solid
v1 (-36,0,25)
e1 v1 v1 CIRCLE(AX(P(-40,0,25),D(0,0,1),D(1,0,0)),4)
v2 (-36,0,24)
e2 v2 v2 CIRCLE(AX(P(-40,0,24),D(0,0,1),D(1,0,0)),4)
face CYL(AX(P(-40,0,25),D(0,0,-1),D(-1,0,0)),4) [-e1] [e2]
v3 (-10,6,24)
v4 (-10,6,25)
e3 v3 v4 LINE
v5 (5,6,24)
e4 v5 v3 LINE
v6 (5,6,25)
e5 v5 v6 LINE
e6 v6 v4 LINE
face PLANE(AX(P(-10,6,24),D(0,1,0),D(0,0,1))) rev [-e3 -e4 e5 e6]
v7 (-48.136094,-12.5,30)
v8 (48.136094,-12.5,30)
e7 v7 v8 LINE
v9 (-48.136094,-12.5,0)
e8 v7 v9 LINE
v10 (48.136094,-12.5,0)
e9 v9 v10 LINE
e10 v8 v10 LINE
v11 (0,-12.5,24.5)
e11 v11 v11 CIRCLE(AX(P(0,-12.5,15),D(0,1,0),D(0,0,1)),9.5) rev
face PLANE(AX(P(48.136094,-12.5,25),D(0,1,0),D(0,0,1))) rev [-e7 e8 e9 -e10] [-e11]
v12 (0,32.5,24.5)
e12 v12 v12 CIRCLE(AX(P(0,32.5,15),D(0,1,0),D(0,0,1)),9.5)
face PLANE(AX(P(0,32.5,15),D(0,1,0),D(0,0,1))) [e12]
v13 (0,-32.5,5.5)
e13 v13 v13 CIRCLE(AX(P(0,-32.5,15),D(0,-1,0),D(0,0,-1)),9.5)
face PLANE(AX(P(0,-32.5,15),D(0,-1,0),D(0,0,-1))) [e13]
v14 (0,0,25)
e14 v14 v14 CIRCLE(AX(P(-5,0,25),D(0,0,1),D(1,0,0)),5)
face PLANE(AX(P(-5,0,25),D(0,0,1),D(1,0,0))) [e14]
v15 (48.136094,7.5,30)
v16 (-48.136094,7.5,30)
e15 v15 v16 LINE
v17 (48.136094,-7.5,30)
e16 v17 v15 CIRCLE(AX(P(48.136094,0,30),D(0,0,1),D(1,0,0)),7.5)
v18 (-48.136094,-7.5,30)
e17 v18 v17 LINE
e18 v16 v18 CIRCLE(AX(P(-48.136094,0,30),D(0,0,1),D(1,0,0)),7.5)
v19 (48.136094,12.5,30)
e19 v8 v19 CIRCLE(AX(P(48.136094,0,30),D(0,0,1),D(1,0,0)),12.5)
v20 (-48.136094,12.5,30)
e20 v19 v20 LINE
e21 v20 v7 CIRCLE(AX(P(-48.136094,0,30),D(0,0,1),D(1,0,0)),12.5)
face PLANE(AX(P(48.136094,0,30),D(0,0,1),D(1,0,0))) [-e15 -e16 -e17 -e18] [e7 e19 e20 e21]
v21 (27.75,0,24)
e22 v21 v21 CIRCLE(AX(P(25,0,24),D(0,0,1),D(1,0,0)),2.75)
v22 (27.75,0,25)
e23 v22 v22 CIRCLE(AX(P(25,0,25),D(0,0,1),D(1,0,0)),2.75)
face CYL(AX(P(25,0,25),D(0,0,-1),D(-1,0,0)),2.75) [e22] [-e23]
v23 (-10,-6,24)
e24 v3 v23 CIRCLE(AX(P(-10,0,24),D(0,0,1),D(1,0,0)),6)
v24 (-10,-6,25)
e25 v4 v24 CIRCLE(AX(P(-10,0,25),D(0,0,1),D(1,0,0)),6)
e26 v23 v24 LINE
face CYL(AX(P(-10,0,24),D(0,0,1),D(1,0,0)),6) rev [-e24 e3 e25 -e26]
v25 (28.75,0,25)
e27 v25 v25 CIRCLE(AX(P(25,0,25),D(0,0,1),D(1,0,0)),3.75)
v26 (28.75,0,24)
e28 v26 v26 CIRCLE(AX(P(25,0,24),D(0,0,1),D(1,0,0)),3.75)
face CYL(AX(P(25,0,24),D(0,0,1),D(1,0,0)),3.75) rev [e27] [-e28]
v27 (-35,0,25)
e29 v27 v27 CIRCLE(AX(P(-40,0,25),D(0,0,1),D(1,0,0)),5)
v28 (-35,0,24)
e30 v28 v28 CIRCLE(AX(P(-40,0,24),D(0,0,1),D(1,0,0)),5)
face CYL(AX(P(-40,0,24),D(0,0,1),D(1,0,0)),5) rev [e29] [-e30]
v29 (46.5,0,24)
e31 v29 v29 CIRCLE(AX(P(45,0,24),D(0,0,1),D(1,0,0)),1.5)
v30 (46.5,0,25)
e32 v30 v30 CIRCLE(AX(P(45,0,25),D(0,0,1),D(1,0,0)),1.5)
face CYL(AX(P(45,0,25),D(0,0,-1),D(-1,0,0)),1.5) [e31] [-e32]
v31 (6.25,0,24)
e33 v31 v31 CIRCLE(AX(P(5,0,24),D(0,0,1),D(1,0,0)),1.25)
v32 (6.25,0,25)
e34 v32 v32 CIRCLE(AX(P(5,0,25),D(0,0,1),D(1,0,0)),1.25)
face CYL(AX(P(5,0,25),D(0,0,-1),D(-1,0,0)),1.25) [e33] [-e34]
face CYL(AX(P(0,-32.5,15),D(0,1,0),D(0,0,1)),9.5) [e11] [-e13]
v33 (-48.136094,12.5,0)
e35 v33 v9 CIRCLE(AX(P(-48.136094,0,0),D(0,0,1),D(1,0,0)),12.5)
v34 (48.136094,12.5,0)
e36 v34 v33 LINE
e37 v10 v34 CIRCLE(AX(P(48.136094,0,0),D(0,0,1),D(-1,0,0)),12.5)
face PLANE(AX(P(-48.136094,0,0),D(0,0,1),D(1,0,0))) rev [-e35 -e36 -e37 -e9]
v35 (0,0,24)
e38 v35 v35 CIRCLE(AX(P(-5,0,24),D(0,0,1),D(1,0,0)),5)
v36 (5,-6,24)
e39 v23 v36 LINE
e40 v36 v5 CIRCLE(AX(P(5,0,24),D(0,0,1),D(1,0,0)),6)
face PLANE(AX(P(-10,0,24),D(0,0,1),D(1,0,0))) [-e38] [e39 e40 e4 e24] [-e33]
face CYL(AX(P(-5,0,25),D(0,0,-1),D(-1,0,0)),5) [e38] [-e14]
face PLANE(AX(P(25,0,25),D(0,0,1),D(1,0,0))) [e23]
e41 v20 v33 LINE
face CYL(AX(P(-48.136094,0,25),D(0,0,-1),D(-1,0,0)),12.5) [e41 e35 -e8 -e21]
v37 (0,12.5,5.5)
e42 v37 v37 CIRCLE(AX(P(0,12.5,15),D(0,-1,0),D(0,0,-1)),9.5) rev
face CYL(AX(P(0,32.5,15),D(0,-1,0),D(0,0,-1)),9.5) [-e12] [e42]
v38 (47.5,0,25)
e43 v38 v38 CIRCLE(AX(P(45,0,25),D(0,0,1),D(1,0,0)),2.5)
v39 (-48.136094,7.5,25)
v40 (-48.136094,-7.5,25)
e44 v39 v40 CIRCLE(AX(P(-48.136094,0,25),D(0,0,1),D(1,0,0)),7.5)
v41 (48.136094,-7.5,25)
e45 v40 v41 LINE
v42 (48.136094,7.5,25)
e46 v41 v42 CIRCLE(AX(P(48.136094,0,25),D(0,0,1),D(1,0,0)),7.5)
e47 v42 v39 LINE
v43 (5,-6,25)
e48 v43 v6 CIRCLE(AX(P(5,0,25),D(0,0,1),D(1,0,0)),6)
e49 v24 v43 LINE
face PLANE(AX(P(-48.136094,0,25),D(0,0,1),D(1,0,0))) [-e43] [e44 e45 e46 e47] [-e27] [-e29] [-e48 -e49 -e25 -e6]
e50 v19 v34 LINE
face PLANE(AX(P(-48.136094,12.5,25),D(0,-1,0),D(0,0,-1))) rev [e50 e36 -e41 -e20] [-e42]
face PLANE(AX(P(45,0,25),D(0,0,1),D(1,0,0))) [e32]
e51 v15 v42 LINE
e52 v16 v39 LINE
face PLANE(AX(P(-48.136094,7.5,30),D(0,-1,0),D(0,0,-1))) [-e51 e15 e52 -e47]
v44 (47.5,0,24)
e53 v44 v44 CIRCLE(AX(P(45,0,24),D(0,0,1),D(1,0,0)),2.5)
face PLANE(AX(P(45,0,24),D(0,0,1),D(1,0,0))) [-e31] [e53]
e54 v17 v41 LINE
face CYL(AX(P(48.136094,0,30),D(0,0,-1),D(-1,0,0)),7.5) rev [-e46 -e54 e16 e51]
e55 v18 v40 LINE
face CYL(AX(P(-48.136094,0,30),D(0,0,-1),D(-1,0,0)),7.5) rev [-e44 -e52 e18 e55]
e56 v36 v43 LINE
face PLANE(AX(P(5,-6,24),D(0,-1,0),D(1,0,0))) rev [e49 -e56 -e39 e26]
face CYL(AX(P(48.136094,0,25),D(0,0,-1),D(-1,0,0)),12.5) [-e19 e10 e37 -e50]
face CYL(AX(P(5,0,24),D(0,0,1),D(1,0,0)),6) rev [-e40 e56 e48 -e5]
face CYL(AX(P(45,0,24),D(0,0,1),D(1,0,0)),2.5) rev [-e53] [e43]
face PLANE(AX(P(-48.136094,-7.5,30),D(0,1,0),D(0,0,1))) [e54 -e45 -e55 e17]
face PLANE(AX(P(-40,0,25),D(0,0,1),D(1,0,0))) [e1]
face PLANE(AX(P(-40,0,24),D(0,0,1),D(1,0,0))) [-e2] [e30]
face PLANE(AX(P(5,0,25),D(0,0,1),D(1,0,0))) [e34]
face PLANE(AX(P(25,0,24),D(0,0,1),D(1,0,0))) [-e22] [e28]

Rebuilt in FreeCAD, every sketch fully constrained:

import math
import FreeCAD as App
import Part
import Sketcher
from FreeCAD import Vector
Q = App.Units.Quantity

doc = App.newDocument("Part")
body = doc.addObject("PartDesign::Body", "Body")

# Sketch on XY plane
sketch1 = doc.addObject("Sketcher::SketchObject", "Sketch")
body.addObject(sketch1)
sketch1.AttachmentSupport = (doc.XY_Plane, [""])
sketch1.MapMode = "FlatFace"
sketch1.addGeometry([
    Part.LineSegment(Vector(48, 12, 0), Vector(-48, 12, 0)),
    Part.ArcOfCircle(Part.Circle(Vector(-48, 0, 0), Vector(0, 0, 1), 12), math.radians(90), math.radians(270)),
    Part.LineSegment(Vector(-48, -12, 0), Vector(48, -12, 0)),
    Part.ArcOfCircle(Part.Circle(Vector(48, 0, 0), Vector(0, 0, 1), 12), math.radians(-90), math.radians(90)),
], False)
sketch1.addConstraint([
    Sketcher.Constraint("Tangent", 0, 2, 1, 1),
    Sketcher.Constraint("Tangent", 1, 2, 2, 1),
    Sketcher.Constraint("Tangent", 2, 2, 3, 1),
    Sketcher.Constraint("Tangent", 3, 2, 0, 1),
    Sketcher.Constraint("Horizontal", 0),
    Sketcher.Constraint("Horizontal", 2),
    Sketcher.Constraint("Symmetric", 1, 3, 3, 3, -1, 1),
    Sketcher.Constraint("Radius", 1, Q("12.5 mm")),
    Sketcher.Constraint("DistanceX", 0, 2, 0, 1, Q("96.272188 mm")),
])
pad1 = doc.addObject("PartDesign::Pad", "Pad")
body.addObject(pad1)
pad1.Profile = sketch1
pad1.Length = 25

# Sketch on XY plane
sketch2 = doc.addObject("Sketcher::SketchObject", "Sketch001")
body.addObject(sketch2)
sketch2.AttachmentSupport = (doc.XY_Plane, [""])
sketch2.MapMode = "FlatFace"
sketch2.AttachmentOffset = App.Placement(Vector(0, 0, 25), App.Rotation())
sketch2.addGeometry([
    Part.LineSegment(Vector(-48, -12, 0), Vector(48, -12, 0)),  # 0
    Part.ArcOfCircle(Part.Circle(Vector(48, 0, 0), Vector(0, 0, 1), 12), math.radians(-90), math.radians(90)),  # 1
    Part.LineSegment(Vector(48, 12, 0), Vector(-48, 12, 0)),  # 2
    Part.ArcOfCircle(Part.Circle(Vector(-48, 0, 0), Vector(0, 0, 1), 12), math.radians(90), math.radians(270)),  # 3
    Part.LineSegment(Vector(48, -8, 0), Vector(-48, -8, 0)),  # 4
    Part.ArcOfCircle(Part.Circle(Vector(-48, 0, 0), Vector(0, 0, 1), 8), math.radians(90), math.radians(270)),  # 5
    Part.LineSegment(Vector(-48, 8, 0), Vector(48, 8, 0)),  # 6
    Part.ArcOfCircle(Part.Circle(Vector(48, 0, 0), Vector(0, 0, 1), 8), math.radians(-90), math.radians(90)),  # 7
], False)
sketch2.addConstraint([
    Sketcher.Constraint("Tangent", 0, 2, 1, 1),
    Sketcher.Constraint("Tangent", 1, 2, 2, 1),
    Sketcher.Constraint("Tangent", 2, 2, 3, 1),
    Sketcher.Constraint("Tangent", 3, 2, 0, 1),
    Sketcher.Constraint("Tangent", 4, 2, 5, 2),
    Sketcher.Constraint("Tangent", 5, 1, 6, 1),
    Sketcher.Constraint("Tangent", 6, 2, 7, 2),
    Sketcher.Constraint("Tangent", 7, 1, 4, 1),
    Sketcher.Constraint("Horizontal", 0),
    Sketcher.Constraint("Horizontal", 2),
    Sketcher.Constraint("Horizontal", 4),
    Sketcher.Constraint("Horizontal", 6),
    Sketcher.Constraint("Coincident", 5, 3, 3, 3),
    Sketcher.Constraint("Symmetric", 1, 3, 3, 3, -1, 1),
    Sketcher.Constraint("Vertical", 7, 3, 0, 2),
    Sketcher.Constraint("Radius", 1, Q("12.5 mm")),
    Sketcher.Constraint("Radius", 5, Q("7.5 mm")),
    Sketcher.Constraint("DistanceX", 0, 1, 0, 2, Q("96.272188 mm")),
])
pad2 = doc.addObject("PartDesign::Pad", "Pad001")
body.addObject(pad2)
pad2.Profile = sketch2
pad2.Length = 5

# Sketch on XY plane
sketch3 = doc.addObject("Sketcher::SketchObject", "Sketch002")
body.addObject(sketch3)
sketch3.AttachmentSupport = (doc.XY_Plane, [""])
sketch3.MapMode = "FlatFace"
sketch3.AttachmentOffset = App.Placement(Vector(0, 0, 25), App.Rotation())
sketch3.addGeometry([
    Part.Circle(Vector(-40, 0, 0), Vector(0, 0, 1), 5),  # 0
    Part.Circle(Vector(25, 0, 0), Vector(0, 0, 1), 3.8),  # 1
    Part.Circle(Vector(45, 0, 0), Vector(0, 0, 1), 2.5),  # 2
    Part.LineSegment(Vector(5, 6, 0), Vector(-10, 6, 0)),  # 3
    Part.ArcOfCircle(Part.Circle(Vector(-10, 0, 0), Vector(0, 0, 1), 6), math.radians(90), math.radians(270)),  # 4
    Part.LineSegment(Vector(-10, -6, 0), Vector(5, -6, 0)),  # 5
    Part.ArcOfCircle(Part.Circle(Vector(5, 0, 0), Vector(0, 0, 1), 6), math.radians(-90), math.radians(90)),  # 6
], False)
sketch3.addConstraint([
    Sketcher.Constraint("Tangent", 3, 2, 4, 1),
    Sketcher.Constraint("Tangent", 4, 2, 5, 1),
    Sketcher.Constraint("Tangent", 5, 2, 6, 1),
    Sketcher.Constraint("Tangent", 6, 2, 3, 1),
    Sketcher.Constraint("Horizontal", 3),
    Sketcher.Constraint("Horizontal", 5),
    Sketcher.Constraint("PointOnObject", 0, 3, -1),
    Sketcher.Constraint("PointOnObject", 1, 3, -1),
    Sketcher.Constraint("PointOnObject", 2, 3, -1),
    Sketcher.Constraint("PointOnObject", 4, 3, -1),
    Sketcher.Constraint("Diameter", 0, Q("10 mm")),
    Sketcher.Constraint("Diameter", 2, Q("5 mm")),
    Sketcher.Constraint("Radius", 4, Q("6 mm")),
    Sketcher.Constraint("Diameter", 1, Q("7.5 mm")),
    Sketcher.Constraint("DistanceX", 3, 2, 3, 1, Q("15 mm")),
    Sketcher.Constraint("DistanceX", 0, 3, -1, 1, Q("40 mm")),
    Sketcher.Constraint("DistanceX", -1, 1, 1, 3, Q("25 mm")),
    Sketcher.Constraint("DistanceX", -1, 1, 2, 3, Q("45 mm")),
    Sketcher.Constraint("DistanceX", 4, 3, -1, 1, Q("10 mm")),
])
pocket1 = doc.addObject("PartDesign::Pocket", "Pocket")
body.addObject(pocket1)
pocket1.Profile = sketch3
pocket1.Length = 1

# Sketch on XY plane
sketch4 = doc.addObject("Sketcher::SketchObject", "Sketch003")
body.addObject(sketch4)
sketch4.AttachmentSupport = (doc.XY_Plane, [""])
sketch4.MapMode = "FlatFace"
sketch4.AttachmentOffset = App.Placement(Vector(0, 0, 24), App.Rotation())
sketch4.addGeometry([
    Part.Circle(Vector(-5, 0, 0), Vector(0, 0, 1), 5),  # 0
    Part.Circle(Vector(5, 0, 0), Vector(0, 0, 1), 1.2),  # 1
    Part.Circle(Vector(-40, 0, 0), Vector(0, 0, 1), 4),  # 2
    Part.Circle(Vector(25, 0, 0), Vector(0, 0, 1), 2.8),  # 3
    Part.Circle(Vector(45, 0, 0), Vector(0, 0, 1), 1.5),  # 4
], False)
sketch4.addConstraint([
    Sketcher.Constraint("Symmetric", 0, 3, 1, 3, -1, 1),
    Sketcher.Constraint("PointOnObject", 0, 3, -1),
    Sketcher.Constraint("PointOnObject", 2, 3, -1),
    Sketcher.Constraint("PointOnObject", 3, 3, -1),
    Sketcher.Constraint("PointOnObject", 4, 3, -1),
    Sketcher.Constraint("Diameter", 0, Q("10 mm")),
    Sketcher.Constraint("Diameter", 2, Q("8 mm")),
    Sketcher.Constraint("Diameter", 4, Q("3 mm")),
    Sketcher.Constraint("Diameter", 1, Q("2.5 mm")),
    Sketcher.Constraint("Diameter", 3, Q("5.5 mm")),
    Sketcher.Constraint("DistanceX", 0, 3, -1, 1, Q("5 mm")),
    Sketcher.Constraint("DistanceX", 2, 3, -1, 1, Q("40 mm")),
    Sketcher.Constraint("DistanceX", -1, 1, 3, 3, Q("25 mm")),
    Sketcher.Constraint("DistanceX", -1, 1, 4, 3, Q("45 mm")),
])
pad3 = doc.addObject("PartDesign::Pad", "Pad002")
body.addObject(pad3)
pad3.Profile = sketch4
pad3.Length = 1

# Sketch on XZ plane
sketch5 = doc.addObject("Sketcher::SketchObject", "Sketch004")
body.addObject(sketch5)
sketch5.AttachmentSupport = (doc.XZ_Plane, [""])
sketch5.MapMode = "FlatFace"
sketch5.AttachmentOffset = App.Placement(Vector(0, 0, -12.5), App.Rotation())
sketch5.addGeometry(Part.Circle(Vector(0, 15, 0), Vector(0, 0, 1), 10), False)
sketch5.addConstraint([
    Sketcher.Constraint("PointOnObject", 0, 3, -2),
    Sketcher.Constraint("Diameter", 0, Q("19 mm")),
    Sketcher.Constraint("DistanceY", -1, 1, 0, 3, Q("15 mm")),
])
pad4 = doc.addObject("PartDesign::Pad", "Pad003")
body.addObject(pad4)
pad4.Profile = sketch5
pad4.Length = 20
pad4.Reversed = True

# Sketch on XZ plane
sketch6 = doc.addObject("Sketcher::SketchObject", "Sketch005")
body.addObject(sketch6)
sketch6.AttachmentSupport = (doc.XZ_Plane, [""])
sketch6.MapMode = "FlatFace"
sketch6.AttachmentOffset = App.Placement(Vector(0, 0, 32.5), App.Rotation())
sketch6.addGeometry(Part.Circle(Vector(0, 15, 0), Vector(0, 0, 1), 10), False)
sketch6.addConstraint([
    Sketcher.Constraint("PointOnObject", 0, 3, -2),
    Sketcher.Constraint("Diameter", 0, Q("19 mm")),
    Sketcher.Constraint("DistanceY", -1, 1, 0, 3, Q("15 mm")),
])
pad5 = doc.addObject("PartDesign::Pad", "Pad004")
body.addObject(pad5)
pad5.Profile = sketch6
pad5.Length = 20
pad5.Reversed = True

doc.recompute()
